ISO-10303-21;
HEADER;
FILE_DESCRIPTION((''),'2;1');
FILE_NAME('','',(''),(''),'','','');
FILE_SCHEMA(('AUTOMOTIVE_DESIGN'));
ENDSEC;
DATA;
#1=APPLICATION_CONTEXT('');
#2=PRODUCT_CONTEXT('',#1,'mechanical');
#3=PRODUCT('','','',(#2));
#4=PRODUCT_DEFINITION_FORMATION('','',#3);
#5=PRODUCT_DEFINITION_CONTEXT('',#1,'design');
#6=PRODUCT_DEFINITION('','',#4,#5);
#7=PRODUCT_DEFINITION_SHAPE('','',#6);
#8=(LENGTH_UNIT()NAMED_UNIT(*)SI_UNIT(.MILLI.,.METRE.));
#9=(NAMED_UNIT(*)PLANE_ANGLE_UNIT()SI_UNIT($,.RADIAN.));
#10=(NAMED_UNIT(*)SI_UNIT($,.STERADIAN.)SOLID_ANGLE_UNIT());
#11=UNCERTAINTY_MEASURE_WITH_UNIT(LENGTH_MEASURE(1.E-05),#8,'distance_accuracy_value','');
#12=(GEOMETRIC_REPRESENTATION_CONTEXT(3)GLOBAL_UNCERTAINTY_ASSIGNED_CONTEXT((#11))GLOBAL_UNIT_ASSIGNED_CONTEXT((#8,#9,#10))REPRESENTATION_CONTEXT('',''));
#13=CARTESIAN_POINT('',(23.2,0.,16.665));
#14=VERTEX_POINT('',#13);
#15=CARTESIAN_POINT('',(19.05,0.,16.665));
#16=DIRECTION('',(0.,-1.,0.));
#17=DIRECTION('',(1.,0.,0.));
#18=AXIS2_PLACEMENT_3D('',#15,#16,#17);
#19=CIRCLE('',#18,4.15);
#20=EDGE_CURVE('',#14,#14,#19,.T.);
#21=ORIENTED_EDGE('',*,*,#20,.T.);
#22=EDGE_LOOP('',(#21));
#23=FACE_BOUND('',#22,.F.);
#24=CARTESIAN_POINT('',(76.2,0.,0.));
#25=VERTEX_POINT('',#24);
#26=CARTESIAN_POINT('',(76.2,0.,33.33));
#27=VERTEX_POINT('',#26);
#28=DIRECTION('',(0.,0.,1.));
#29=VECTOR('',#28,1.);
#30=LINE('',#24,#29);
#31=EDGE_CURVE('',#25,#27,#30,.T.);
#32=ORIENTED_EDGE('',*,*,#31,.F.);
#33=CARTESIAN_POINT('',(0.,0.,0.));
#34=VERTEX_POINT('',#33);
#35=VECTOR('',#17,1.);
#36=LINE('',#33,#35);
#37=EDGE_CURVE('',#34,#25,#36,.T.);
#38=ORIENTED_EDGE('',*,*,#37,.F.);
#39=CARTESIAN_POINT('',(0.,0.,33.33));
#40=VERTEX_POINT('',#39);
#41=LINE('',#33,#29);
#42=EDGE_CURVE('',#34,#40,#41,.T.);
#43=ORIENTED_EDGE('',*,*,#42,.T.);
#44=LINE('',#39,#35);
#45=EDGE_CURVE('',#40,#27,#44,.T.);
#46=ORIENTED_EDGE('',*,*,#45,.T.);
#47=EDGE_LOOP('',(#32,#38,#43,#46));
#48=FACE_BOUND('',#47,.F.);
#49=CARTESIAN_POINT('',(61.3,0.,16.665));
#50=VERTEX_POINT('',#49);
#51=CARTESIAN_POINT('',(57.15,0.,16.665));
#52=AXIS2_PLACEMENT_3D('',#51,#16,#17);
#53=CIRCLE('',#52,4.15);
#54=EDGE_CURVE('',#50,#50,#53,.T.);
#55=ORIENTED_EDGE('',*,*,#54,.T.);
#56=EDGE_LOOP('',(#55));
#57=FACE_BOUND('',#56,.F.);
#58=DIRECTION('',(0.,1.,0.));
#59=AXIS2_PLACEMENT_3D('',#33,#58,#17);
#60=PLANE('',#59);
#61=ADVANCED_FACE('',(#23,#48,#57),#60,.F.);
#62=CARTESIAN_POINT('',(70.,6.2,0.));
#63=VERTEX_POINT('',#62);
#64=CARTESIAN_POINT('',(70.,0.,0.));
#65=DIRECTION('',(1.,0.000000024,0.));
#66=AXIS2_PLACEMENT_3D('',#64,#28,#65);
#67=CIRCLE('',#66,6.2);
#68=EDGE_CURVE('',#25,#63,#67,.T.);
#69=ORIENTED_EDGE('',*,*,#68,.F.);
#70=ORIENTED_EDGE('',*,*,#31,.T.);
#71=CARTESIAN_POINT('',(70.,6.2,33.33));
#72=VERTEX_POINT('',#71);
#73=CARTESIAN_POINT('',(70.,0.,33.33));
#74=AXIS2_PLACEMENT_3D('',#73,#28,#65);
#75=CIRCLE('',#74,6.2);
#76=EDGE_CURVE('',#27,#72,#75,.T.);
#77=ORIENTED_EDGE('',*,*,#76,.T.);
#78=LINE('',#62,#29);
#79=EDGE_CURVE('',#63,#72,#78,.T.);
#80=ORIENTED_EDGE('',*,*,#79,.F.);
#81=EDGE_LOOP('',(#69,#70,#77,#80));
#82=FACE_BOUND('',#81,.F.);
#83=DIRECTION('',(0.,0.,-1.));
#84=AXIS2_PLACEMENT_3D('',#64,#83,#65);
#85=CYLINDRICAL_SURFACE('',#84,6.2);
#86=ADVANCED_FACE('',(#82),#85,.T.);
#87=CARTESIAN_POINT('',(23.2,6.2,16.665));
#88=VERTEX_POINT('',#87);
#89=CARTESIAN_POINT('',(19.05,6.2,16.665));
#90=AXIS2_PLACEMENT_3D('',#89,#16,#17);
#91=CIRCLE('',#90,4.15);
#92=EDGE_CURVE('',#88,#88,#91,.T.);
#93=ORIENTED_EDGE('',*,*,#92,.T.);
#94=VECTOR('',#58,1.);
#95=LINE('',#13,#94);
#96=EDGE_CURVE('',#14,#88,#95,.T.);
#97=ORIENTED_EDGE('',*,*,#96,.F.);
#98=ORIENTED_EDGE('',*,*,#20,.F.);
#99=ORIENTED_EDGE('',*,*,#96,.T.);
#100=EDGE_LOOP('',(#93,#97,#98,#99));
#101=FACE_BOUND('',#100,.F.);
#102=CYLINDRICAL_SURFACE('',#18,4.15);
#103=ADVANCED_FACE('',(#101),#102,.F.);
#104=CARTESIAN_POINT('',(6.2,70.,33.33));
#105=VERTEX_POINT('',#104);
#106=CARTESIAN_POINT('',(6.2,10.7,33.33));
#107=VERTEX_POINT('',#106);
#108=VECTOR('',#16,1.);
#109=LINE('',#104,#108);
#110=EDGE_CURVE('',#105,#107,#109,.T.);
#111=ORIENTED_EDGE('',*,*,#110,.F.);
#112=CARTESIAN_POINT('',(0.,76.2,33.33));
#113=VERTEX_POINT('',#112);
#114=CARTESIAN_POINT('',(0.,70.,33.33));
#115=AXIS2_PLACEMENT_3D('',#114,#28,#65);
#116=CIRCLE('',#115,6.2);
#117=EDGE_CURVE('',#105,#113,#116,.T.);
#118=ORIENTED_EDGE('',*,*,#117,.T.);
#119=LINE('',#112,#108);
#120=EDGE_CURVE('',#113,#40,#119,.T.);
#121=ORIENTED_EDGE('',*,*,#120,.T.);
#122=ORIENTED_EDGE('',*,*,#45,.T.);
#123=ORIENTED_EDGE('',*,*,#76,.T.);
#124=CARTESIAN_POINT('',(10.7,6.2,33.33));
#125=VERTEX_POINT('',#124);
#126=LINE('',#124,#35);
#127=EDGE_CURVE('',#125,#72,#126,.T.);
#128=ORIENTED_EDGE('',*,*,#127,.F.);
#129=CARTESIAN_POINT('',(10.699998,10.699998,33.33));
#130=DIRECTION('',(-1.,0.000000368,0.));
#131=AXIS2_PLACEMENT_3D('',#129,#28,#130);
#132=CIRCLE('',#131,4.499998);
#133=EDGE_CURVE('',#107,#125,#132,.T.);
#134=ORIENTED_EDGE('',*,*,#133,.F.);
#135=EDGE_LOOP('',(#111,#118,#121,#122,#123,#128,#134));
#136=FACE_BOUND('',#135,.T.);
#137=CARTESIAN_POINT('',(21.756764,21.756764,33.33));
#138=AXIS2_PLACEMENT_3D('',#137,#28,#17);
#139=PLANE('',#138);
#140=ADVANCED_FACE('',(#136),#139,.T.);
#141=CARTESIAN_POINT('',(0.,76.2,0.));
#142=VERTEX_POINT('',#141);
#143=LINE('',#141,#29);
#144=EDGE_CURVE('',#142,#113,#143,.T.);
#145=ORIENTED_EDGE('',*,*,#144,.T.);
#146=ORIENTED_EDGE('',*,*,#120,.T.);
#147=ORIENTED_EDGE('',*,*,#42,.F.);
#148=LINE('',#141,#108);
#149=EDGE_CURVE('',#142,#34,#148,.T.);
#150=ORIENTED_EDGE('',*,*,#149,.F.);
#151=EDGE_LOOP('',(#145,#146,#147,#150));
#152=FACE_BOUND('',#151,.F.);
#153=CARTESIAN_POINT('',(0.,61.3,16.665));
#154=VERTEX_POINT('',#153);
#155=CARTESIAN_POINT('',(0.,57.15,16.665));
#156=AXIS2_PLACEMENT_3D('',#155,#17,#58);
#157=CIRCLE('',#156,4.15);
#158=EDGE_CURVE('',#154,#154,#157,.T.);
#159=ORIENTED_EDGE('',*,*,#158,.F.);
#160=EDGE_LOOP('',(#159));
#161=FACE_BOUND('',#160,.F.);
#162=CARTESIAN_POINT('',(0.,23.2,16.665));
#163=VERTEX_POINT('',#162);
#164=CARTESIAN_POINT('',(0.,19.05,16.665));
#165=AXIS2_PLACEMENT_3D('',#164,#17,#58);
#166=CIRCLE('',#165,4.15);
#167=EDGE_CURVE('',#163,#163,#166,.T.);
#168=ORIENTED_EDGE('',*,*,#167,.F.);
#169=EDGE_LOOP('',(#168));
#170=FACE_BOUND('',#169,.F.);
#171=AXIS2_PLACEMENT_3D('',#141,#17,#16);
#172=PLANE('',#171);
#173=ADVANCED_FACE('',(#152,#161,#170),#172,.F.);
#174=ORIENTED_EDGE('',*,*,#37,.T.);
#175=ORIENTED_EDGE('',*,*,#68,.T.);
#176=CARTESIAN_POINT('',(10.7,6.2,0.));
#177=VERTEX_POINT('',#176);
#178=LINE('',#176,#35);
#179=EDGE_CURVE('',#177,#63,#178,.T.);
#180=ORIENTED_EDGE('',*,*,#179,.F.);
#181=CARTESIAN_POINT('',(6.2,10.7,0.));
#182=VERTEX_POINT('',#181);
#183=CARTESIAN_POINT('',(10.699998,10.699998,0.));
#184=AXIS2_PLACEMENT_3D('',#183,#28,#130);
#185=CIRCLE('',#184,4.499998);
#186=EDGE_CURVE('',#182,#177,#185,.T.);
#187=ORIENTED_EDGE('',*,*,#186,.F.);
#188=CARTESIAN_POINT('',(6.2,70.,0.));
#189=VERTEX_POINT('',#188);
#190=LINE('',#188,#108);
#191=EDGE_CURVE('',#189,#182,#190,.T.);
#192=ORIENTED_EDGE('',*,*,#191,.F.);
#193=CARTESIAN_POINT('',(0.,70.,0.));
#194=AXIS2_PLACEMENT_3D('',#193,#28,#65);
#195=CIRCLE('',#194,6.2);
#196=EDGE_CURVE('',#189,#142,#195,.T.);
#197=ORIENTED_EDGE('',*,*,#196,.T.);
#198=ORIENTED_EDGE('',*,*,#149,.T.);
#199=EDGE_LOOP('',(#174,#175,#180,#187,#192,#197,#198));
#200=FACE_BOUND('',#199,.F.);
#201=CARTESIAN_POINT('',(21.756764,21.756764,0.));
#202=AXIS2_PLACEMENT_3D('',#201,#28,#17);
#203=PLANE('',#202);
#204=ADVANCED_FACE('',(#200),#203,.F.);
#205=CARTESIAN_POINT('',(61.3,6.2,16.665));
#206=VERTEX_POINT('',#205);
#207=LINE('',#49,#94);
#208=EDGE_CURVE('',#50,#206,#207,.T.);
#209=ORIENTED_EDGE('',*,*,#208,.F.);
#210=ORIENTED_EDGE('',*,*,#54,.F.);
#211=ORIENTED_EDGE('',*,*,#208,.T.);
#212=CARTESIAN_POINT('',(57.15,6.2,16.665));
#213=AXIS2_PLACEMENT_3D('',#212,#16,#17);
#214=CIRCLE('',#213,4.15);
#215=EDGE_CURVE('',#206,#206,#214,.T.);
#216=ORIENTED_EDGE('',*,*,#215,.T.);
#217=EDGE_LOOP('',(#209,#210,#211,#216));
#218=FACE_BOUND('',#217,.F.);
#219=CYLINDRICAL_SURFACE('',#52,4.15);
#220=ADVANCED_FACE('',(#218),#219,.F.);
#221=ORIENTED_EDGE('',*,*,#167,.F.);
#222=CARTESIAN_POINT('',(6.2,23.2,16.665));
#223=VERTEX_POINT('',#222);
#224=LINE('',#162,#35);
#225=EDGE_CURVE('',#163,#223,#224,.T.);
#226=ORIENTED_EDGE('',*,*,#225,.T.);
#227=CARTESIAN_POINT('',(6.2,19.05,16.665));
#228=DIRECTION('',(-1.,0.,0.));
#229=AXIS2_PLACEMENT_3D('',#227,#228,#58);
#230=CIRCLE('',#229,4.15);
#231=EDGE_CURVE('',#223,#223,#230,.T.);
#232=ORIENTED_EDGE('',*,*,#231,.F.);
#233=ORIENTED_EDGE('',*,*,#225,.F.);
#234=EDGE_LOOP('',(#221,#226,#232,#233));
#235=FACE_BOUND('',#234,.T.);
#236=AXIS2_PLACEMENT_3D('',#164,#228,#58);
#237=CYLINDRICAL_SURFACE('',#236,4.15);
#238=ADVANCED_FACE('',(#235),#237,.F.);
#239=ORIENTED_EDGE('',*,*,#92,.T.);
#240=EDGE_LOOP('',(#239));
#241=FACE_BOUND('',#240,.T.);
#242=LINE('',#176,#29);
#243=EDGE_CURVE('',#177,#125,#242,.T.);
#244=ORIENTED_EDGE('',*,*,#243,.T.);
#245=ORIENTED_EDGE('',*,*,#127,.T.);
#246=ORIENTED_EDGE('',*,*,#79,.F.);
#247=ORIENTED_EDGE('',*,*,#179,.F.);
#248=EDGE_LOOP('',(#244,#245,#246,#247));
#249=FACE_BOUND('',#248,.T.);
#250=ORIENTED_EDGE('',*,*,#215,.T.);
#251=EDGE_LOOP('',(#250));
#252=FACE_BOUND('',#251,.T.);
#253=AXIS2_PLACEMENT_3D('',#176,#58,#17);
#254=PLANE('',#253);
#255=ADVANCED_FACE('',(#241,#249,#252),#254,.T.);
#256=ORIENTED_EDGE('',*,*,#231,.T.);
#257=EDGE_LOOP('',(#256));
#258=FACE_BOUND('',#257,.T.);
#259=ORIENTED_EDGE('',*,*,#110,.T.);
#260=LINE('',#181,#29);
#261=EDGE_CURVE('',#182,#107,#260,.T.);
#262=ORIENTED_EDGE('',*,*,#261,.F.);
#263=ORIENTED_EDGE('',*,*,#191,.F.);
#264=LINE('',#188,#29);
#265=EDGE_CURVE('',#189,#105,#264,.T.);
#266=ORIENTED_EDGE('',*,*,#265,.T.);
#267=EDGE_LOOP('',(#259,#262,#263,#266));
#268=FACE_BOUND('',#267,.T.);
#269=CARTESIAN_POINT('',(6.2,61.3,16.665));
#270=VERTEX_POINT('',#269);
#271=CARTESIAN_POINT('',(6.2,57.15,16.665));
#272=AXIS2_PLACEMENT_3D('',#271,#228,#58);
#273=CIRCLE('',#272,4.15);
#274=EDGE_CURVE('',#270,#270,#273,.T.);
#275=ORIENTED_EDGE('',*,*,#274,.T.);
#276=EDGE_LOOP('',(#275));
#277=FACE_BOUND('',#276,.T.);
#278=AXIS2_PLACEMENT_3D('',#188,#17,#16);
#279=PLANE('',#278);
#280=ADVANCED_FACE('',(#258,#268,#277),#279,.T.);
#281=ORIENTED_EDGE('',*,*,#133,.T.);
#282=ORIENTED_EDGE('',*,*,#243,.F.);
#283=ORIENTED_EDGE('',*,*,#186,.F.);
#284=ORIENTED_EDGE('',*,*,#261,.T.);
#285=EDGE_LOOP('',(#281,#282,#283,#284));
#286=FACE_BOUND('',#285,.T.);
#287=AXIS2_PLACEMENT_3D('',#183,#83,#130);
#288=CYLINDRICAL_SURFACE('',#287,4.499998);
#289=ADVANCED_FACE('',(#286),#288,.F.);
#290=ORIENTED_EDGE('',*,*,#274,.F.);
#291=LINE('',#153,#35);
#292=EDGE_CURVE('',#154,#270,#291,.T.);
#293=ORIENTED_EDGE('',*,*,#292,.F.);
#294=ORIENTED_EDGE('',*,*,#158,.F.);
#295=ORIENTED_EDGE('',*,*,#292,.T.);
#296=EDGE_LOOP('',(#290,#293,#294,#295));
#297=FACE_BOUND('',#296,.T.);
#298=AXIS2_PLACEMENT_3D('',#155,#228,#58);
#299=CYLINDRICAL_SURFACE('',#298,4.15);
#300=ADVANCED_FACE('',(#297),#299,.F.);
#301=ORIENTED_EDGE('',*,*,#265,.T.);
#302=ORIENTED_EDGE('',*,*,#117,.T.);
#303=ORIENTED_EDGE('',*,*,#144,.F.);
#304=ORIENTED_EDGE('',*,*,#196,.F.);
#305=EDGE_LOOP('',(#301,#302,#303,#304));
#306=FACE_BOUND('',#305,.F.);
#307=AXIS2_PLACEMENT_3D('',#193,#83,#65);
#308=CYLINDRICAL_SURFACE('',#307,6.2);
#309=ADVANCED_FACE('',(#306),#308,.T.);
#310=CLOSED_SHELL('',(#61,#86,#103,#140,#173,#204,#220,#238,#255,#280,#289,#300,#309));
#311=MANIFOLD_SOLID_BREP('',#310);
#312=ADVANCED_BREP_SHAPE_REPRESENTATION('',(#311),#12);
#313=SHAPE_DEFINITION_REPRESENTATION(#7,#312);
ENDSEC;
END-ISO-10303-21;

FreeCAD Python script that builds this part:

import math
import FreeCAD as App
import Part
import Sketcher

V = App.Vector
Q = App.Units.Quantity

doc = App.newDocument("Part")
params = doc.addObject("Spreadsheet::Sheet", "Params")
for row, (alias, value) in enumerate([
    ("sketch1_radius", "6.2 mm"),
    ("sketch1_radius2", "4.499998 mm"),
    ("sketch1_width", "76.2 mm"),
    ("pad1_length", "33.33 mm"),
    ("sketch2_diameter", "8.3 mm"),
    ("sketch3_diameter", "8.3 mm"),
], start=1):
    params.set(f"A{row}", alias)
    params.set(f"B{row}", "=" + value)
    params.setAlias(f"B{row}", alias)

body = doc.addObject("PartDesign::Body", "Body")

sketch1 = doc.addObject("Sketcher::SketchObject", "Sketch")
body.addObject(sketch1)
sketch1.AttachmentSupport = (doc.XY_Plane, [""])
sketch1.MapMode = "FlatFace"
sketch1.addGeometry([
    Part.LineSegment(V(0, 76.2, 0), V(0, 0, 0)),
    Part.LineSegment(V(0, 0, 0), V(76.2, 0, 0)),
    Part.ArcOfCircle(Part.Circle(V(70, 0, 0), V(0, 0, 1), 6.2), math.radians(0), math.radians(90)),
    Part.LineSegment(V(70, 6.2, 0), V(10.7, 6.2, 0)),
    Part.ArcOfCircle(Part.Circle(V(10.7, 10.7, 0), V(0, 0, 1), 4.5), math.radians(180), math.radians(270)),
    Part.LineSegment(V(6.2, 10.7, 0), V(6.2, 70, 0)),
    Part.ArcOfCircle(Part.Circle(V(0, 70, 0), V(0, 0, 1), 6.2), math.radians(0), math.radians(90)),
], False)
sketch1.addConstraint([
    Sketcher.Constraint("Coincident", 0, 2, 1, 1),
    Sketcher.Constraint("Coincident", 1, 2, 2, 1),
    Sketcher.Constraint("Tangent", 2, 2, 3, 1),
    Sketcher.Constraint("Tangent", 3, 2, 4, 2),
    Sketcher.Constraint("Tangent", 4, 1, 5, 1),
    Sketcher.Constraint("Tangent", 5, 2, 6, 1),
    Sketcher.Constraint("Coincident", 6, 2, 0, 1),
    Sketcher.Constraint("Vertical", 0),
    Sketcher.Constraint("Horizontal", 1),
    Sketcher.Constraint("Horizontal", 3),
    Sketcher.Constraint("Vertical", 5),
    Sketcher.Constraint("Coincident", 0, 2, -1, 1),
    Sketcher.Constraint("Equal", 2, 6),
    Sketcher.Constraint("PointOnObject", 2, 3, -1),
    Sketcher.Constraint("PointOnObject", 6, 3, -2),
    Sketcher.Constraint("Equal", 1, 0),
    Sketcher.Constraint("Radius", 2, Q("6.2 mm")),
    Sketcher.Constraint("Radius", 4, Q("4.499998 mm")),
    Sketcher.Constraint("DistanceX", 1, 1, 1, 2, Q("76.2 mm")),
])
sketch1.setExpression("Constraints[16]", "Params.sketch1_radius")
sketch1.setExpression("Constraints[17]", "Params.sketch1_radius2")
sketch1.setExpression("Constraints[18]", "Params.sketch1_width")
pad1 = doc.addObject("PartDesign::Pad", "Pad")
body.addObject(pad1)
pad1.Profile = sketch1
pad1.setExpression("Length", "Params.pad1_length")

sketch2 = doc.addObject("Sketcher::SketchObject", "Sketch001")
body.addObject(sketch2)
sketch2.AttachmentSupport = (doc.XZ_Plane, [""])
sketch2.MapMode = "FlatFace"
sketch2.addGeometry([
    Part.Circle(V(19.1, 16.7, 0), V(0, 0, 1), 4.2),
    Part.Circle(V(57.1, 16.7, 0), V(0, 0, 1), 4.2),
], False)
sketch2.addConstraint([
    Sketcher.Constraint("Equal", 0, 1),
    Sketcher.Constraint("Horizontal", 0, 3, 1, 3),
    Sketcher.Constraint("Diameter", 0, Q("8.3 mm")),
    Sketcher.Constraint("DistanceX", 0, 3, 1, 3, Q("38.1 mm")),
    Sketcher.Constraint("DistanceX", -1, 1, 0, 3, Q("19.05 mm")),
    Sketcher.Constraint("DistanceY", -1, 1, 0, 3, Q("16.665 mm")),
])
sketch2.setExpression("Constraints[2]", "Params.sketch2_diameter")
pocket1 = doc.addObject("PartDesign::Pocket", "Pocket")
body.addObject(pocket1)
pocket1.Profile = sketch2
pocket1.Type = "ThroughAll"

sketch3 = doc.addObject("Sketcher::SketchObject", "Sketch002")
body.addObject(sketch3)
sketch3.AttachmentSupport = (doc.YZ_Plane, [""])
sketch3.MapMode = "FlatFace"
sketch3.addGeometry([
    Part.Circle(V(19.1, 16.7, 0), V(0, 0, 1), 4.2),
    Part.Circle(V(57.1, 16.7, 0), V(0, 0, 1), 4.2),
], False)
sketch3.addConstraint([
    Sketcher.Constraint("Equal", 0, 1),
    Sketcher.Constraint("Horizontal", 0, 3, 1, 3),
    Sketcher.Constraint("Diameter", 0, Q("8.3 mm")),
    Sketcher.Constraint("DistanceX", 0, 3, 1, 3, Q("38.1 mm")),
    Sketcher.Constraint("DistanceX", -1, 1, 0, 3, Q("19.05 mm")),
    Sketcher.Constraint("DistanceY", -1, 1, 0, 3, Q("16.665 mm")),
])
sketch3.setExpression("Constraints[2]", "Params.sketch3_diameter")
pocket2 = doc.addObject("PartDesign::Pocket", "Pocket001")
body.addObject(pocket2)
pocket2.Profile = sketch3
pocket2.Type = "ThroughAll"
pocket2.Reversed = True

doc.recompute()
